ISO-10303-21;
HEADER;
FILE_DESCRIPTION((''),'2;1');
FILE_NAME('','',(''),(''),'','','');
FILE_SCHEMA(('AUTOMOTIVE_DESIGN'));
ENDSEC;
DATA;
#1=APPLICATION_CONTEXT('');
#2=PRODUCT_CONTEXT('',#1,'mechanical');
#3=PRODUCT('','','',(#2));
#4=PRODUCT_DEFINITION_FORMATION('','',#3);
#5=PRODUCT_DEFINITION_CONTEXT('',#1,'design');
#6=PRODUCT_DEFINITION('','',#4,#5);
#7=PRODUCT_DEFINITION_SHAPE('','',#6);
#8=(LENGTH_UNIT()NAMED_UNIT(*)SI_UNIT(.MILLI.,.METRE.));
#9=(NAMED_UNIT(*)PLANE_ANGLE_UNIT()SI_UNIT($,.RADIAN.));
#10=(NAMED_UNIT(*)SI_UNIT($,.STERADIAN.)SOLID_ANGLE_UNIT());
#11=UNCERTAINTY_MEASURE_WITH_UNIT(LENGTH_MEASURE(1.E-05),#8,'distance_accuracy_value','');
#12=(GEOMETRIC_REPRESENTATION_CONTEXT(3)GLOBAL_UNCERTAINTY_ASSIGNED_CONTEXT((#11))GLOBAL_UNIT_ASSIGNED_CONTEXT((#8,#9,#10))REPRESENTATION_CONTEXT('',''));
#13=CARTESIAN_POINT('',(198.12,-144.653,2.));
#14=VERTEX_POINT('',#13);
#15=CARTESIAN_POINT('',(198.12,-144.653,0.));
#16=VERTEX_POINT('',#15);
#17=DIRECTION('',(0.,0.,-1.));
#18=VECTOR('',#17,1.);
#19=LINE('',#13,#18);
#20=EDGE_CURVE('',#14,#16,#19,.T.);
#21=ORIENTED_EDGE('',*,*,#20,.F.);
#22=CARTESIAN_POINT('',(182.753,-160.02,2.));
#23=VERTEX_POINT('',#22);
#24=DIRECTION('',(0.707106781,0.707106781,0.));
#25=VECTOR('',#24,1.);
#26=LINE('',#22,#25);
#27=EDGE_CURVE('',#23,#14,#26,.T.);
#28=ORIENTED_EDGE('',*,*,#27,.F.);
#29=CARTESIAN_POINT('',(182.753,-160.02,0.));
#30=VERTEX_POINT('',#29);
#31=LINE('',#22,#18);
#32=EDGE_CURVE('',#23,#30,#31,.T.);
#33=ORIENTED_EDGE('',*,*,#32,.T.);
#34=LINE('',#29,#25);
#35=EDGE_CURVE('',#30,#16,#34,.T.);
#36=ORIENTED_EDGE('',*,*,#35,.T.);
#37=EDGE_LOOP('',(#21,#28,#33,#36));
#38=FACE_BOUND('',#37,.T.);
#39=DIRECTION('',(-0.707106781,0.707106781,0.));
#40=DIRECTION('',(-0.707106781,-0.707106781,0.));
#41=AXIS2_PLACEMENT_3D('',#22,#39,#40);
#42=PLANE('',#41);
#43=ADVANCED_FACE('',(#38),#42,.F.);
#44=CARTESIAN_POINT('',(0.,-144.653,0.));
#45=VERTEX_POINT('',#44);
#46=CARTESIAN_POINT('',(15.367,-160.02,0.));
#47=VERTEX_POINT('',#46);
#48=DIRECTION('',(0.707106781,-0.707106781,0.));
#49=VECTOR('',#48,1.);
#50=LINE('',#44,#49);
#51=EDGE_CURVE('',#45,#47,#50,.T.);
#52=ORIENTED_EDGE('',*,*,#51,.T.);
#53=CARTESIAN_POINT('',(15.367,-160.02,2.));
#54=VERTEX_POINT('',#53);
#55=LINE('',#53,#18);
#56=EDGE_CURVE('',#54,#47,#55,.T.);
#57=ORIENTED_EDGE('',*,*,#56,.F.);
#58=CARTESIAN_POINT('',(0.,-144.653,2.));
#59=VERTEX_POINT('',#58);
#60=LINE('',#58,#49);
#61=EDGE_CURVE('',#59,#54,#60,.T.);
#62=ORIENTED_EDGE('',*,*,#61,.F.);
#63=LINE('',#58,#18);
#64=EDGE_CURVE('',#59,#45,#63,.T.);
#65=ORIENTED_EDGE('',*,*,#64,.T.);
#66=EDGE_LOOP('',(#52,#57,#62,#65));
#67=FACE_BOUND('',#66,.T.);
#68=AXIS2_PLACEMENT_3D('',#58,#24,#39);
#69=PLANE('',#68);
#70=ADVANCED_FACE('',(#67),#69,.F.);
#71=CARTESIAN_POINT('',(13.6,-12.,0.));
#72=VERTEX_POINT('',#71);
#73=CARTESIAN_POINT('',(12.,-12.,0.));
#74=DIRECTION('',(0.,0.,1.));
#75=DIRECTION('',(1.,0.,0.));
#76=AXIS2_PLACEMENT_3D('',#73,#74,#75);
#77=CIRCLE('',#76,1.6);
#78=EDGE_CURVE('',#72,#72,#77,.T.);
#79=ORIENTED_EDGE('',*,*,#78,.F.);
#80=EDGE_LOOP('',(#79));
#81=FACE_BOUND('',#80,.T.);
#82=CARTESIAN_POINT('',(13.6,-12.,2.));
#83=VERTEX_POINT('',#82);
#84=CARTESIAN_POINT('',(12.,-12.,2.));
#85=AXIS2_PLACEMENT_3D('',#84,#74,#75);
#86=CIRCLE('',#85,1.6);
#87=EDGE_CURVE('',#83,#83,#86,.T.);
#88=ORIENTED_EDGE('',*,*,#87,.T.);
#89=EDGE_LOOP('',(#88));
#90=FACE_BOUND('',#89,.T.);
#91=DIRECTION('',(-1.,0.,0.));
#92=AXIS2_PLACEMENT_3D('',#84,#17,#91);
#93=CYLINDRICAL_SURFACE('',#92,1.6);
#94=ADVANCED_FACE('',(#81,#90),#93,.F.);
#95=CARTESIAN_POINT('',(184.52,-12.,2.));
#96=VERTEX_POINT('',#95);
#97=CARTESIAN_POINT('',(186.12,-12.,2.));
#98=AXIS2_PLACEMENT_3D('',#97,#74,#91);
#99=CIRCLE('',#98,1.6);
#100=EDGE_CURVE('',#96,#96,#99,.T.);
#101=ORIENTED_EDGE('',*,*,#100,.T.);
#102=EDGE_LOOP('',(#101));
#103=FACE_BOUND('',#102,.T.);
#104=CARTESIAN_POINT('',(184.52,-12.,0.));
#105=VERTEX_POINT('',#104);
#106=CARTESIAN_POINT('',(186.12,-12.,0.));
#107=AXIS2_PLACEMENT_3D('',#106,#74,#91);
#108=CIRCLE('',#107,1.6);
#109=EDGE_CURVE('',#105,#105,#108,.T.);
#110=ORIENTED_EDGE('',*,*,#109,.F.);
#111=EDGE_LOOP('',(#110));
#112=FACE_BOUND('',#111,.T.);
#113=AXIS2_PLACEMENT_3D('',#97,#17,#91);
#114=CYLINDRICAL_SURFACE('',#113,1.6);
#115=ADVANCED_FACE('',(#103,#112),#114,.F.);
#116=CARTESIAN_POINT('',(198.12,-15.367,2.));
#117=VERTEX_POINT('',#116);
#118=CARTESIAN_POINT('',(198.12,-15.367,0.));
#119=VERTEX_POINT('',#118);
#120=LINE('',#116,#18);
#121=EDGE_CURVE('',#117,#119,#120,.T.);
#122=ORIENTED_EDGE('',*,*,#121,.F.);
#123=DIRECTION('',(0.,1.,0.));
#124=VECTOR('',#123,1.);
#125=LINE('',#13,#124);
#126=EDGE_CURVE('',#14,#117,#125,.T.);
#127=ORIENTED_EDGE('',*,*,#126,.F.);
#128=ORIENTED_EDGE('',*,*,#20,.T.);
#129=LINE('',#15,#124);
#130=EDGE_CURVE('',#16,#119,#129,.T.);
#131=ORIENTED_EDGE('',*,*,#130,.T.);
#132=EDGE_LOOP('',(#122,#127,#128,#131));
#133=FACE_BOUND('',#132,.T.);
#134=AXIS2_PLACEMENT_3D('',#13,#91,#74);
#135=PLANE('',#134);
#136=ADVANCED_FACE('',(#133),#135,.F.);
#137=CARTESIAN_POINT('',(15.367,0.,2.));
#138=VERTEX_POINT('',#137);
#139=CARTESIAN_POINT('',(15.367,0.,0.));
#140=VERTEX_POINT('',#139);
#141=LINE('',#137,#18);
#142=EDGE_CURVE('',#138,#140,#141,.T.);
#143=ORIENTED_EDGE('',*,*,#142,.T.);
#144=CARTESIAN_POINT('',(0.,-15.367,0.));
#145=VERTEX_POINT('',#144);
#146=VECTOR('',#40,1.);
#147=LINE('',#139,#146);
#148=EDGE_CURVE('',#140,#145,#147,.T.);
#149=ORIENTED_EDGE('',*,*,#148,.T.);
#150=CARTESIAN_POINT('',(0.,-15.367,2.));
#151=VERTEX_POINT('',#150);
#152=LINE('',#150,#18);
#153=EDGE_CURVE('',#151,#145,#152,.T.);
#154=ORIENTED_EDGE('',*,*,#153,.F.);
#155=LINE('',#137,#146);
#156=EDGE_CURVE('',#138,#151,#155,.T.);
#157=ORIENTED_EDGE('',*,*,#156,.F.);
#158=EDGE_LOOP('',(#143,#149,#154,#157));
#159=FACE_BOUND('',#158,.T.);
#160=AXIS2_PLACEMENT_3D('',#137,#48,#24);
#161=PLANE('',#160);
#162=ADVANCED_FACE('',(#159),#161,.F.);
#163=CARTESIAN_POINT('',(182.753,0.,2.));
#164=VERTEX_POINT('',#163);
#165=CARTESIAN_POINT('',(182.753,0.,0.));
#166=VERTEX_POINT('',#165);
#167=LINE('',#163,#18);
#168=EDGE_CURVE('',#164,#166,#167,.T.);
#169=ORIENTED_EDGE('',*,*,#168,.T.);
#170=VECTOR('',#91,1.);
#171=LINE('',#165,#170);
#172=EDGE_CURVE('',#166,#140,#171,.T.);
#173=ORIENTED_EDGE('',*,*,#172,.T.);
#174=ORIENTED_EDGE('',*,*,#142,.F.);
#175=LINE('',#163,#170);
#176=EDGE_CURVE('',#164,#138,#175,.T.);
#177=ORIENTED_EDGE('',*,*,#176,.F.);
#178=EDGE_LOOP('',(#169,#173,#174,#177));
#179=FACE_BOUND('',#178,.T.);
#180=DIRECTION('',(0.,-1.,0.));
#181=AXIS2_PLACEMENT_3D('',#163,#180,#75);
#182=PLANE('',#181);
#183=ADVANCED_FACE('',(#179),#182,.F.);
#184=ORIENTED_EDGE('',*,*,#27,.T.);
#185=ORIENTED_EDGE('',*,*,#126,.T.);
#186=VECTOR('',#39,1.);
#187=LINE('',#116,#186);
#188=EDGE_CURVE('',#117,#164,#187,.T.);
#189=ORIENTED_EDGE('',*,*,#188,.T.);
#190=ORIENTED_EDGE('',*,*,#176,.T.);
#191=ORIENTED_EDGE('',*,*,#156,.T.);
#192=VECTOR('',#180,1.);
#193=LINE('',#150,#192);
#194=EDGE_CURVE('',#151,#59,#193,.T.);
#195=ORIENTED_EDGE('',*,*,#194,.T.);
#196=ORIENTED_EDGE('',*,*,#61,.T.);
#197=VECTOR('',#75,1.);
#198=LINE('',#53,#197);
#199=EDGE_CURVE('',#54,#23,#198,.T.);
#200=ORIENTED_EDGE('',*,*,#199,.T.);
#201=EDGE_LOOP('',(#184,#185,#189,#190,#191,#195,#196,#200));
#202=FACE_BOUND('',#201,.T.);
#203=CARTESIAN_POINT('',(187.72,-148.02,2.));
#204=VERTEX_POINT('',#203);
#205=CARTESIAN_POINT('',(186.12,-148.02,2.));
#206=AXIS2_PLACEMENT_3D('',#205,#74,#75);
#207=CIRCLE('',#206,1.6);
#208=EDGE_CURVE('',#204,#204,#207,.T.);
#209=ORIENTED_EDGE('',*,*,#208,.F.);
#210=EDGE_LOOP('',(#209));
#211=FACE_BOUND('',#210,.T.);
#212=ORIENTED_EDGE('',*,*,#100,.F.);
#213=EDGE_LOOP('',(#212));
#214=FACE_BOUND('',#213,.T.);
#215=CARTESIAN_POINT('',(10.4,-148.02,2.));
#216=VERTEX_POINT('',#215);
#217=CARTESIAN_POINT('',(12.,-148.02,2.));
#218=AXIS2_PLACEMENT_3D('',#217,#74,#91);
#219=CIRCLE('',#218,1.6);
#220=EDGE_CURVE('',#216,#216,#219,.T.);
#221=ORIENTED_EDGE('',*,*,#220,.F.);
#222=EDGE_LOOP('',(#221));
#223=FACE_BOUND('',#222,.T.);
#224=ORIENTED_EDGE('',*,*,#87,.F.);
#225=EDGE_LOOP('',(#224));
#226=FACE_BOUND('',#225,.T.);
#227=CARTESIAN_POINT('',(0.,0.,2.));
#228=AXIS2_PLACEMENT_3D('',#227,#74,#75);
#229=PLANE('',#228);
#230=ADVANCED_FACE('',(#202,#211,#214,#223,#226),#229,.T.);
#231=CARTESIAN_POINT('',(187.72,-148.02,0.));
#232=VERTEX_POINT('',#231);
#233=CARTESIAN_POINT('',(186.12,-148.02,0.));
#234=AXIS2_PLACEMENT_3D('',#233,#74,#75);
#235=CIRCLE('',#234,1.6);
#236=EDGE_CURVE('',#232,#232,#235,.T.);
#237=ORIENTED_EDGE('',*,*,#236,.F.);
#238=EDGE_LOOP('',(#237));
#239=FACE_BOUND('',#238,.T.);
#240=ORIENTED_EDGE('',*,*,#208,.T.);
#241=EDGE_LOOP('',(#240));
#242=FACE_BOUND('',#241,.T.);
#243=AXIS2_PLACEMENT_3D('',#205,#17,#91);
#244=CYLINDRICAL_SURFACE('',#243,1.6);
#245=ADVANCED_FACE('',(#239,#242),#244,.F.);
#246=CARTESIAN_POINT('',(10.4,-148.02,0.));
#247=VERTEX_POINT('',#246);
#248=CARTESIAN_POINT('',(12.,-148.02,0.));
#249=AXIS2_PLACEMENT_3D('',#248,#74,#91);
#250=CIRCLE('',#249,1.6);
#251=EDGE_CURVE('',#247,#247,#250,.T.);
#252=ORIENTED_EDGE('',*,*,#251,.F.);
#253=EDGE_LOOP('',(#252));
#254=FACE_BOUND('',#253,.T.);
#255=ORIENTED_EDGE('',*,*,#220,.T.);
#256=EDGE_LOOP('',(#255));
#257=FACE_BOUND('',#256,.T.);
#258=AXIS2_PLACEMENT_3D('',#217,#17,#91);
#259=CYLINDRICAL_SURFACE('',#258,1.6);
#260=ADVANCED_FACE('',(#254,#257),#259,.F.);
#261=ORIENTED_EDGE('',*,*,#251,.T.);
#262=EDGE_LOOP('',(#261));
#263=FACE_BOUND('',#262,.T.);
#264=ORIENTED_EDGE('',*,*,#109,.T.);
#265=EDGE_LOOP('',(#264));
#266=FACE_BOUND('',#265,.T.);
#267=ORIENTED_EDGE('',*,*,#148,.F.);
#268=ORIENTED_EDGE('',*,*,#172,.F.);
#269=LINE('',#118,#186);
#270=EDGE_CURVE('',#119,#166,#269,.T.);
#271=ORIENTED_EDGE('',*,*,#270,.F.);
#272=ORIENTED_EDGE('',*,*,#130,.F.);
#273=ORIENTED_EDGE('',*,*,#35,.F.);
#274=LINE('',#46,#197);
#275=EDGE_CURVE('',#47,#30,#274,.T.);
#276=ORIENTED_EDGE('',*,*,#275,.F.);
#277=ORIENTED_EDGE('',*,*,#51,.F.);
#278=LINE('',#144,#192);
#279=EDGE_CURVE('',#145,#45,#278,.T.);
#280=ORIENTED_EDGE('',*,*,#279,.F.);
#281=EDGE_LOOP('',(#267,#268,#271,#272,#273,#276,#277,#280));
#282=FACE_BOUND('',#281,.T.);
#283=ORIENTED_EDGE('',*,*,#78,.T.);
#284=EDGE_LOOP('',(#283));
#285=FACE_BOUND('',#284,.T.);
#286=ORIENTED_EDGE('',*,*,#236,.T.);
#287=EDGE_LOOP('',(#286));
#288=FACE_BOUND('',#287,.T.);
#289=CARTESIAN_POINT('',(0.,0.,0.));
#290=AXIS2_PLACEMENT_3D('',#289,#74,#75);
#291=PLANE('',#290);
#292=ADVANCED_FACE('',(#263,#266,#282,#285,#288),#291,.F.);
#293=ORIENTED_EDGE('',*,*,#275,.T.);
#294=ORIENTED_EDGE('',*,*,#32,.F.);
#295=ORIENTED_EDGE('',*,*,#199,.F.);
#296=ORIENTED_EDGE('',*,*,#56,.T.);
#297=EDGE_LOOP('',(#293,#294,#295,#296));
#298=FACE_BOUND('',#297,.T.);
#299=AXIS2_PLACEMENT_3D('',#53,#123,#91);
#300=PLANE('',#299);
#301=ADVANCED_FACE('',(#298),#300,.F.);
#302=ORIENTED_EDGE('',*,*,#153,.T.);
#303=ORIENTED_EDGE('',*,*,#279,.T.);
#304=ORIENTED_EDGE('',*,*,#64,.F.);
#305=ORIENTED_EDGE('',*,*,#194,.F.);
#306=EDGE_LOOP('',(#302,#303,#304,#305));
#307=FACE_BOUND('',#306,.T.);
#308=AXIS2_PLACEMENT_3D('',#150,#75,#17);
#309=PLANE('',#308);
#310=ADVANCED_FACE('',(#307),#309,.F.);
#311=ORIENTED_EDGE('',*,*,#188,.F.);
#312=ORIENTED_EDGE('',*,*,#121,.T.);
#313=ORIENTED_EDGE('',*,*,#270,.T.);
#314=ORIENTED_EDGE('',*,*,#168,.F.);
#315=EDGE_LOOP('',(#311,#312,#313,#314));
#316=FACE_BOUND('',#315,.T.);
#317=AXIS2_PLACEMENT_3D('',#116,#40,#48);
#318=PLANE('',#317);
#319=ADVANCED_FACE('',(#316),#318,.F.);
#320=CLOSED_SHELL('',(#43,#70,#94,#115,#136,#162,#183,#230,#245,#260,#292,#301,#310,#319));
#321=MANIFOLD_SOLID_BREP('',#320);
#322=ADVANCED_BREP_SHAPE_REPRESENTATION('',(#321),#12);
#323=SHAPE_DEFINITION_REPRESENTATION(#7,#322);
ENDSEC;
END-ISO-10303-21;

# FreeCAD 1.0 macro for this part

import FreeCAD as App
import Part
import Sketcher
Q = App.Units.Quantity

doc = App.newDocument("Part")
body = doc.addObject("PartDesign::Body", "Body")

# Sketch on XY plane
sketch1 = body.newObject("Sketcher::SketchObject", "Sketch")
sketch1.AttachmentSupport = (doc.getObject("XY_Plane"), [""])
sketch1.MapMode = "FlatFace"
sketch1.addGeometry(Part.LineSegment(App.Vector(15.367, 0, 0), App.Vector(0, -15.367, 0)), False)
sketch1.addGeometry(Part.LineSegment(App.Vector(0, -15.367, 0), App.Vector(0, -144.653, 0)), False)
sketch1.addGeometry(Part.LineSegment(App.Vector(0, -144.653, 0), App.Vector(15.367, -160.02, 0)), False)
sketch1.addGeometry(Part.LineSegment(App.Vector(15.367, -160.02, 0), App.Vector(182.753, -160.02, 0)), False)
sketch1.addGeometry(Part.LineSegment(App.Vector(182.753, -160.02, 0), App.Vector(198.12, -144.653, 0)), False)
sketch1.addGeometry(Part.LineSegment(App.Vector(198.12, -144.653, 0), App.Vector(198.12, -15.367, 0)), False)
sketch1.addGeometry(Part.LineSegment(App.Vector(198.12, -15.367, 0), App.Vector(182.753, 0, 0)), False)
sketch1.addGeometry(Part.LineSegment(App.Vector(182.753, 0, 0), App.Vector(15.367, 0, 0)), False)
sketch1.addGeometry(Part.Circle(App.Vector(12, -148.02, 0), App.Vector(0, 0, 1), 1.6), False)
sketch1.addGeometry(Part.Circle(App.Vector(186.12, -148.02, 0), App.Vector(0, 0, 1), 1.6), False)
sketch1.addGeometry(Part.Circle(App.Vector(12, -12, 0), App.Vector(0, 0, 1), 1.6), False)
sketch1.addGeometry(Part.Circle(App.Vector(186.12, -12, 0), App.Vector(0, 0, 1), 1.6), False)
sketch1.addConstraint(Sketcher.Constraint("Coincident", 0, 2, 1, 1))
sketch1.addConstraint(Sketcher.Constraint("Coincident", 1, 2, 2, 1))
sketch1.addConstraint(Sketcher.Constraint("Coincident", 2, 2, 3, 1))
sketch1.addConstraint(Sketcher.Constraint("Coincident", 3, 2, 4, 1))
sketch1.addConstraint(Sketcher.Constraint("Coincident", 4, 2, 5, 1))
sketch1.addConstraint(Sketcher.Constraint("Coincident", 5, 2, 6, 1))
sketch1.addConstraint(Sketcher.Constraint("Coincident", 6, 2, 7, 1))
sketch1.addConstraint(Sketcher.Constraint("Coincident", 7, 2, 0, 1))
sketch1.addConstraint(Sketcher.Constraint("Vertical", 1))
sketch1.addConstraint(Sketcher.Constraint("Horizontal", 3))
sketch1.addConstraint(Sketcher.Constraint("Vertical", 5))
sketch1.addConstraint(Sketcher.Constraint("Horizontal", 7))
sketch1.addConstraint(Sketcher.Constraint("Equal", 8, 9))
sketch1.addConstraint(Sketcher.Constraint("Equal", 9, 10))
sketch1.addConstraint(Sketcher.Constraint("Equal", 10, 11))
sketch1.addConstraint(Sketcher.Constraint("PointOnObject", 0, 2, -2))
sketch1.addConstraint(Sketcher.Constraint("PointOnObject", 6, 2, -1))
sketch1.addConstraint(Sketcher.Constraint("Perpendicular", 0, 2))
sketch1.addConstraint(Sketcher.Constraint("Perpendicular", 2, 4))
sketch1.addConstraint(Sketcher.Constraint("Perpendicular", 4, 6))
sketch1.addConstraint(Sketcher.Constraint("Horizontal", 8, 3, 9, 3))
sketch1.addConstraint(Sketcher.Constraint("Horizontal", 10, 3, 11, 3))
sketch1.addConstraint(Sketcher.Constraint("Horizontal", 1, 2, 4, 2))
sketch1.addConstraint(Sketcher.Constraint("Horizontal", 0, 2, 5, 2))
sketch1.addConstraint(Sketcher.Constraint("Vertical", 8, 3, 10, 3))
sketch1.addConstraint(Sketcher.Constraint("Vertical", 9, 3, 11, 3))
sketch1.addConstraint(Sketcher.Constraint("Vertical", 3, 2, 6, 2))
sketch1.addConstraint(Sketcher.Constraint("Vertical", 2, 2, 7, 2))
sketch1.addConstraint(Sketcher.Constraint("Diameter", 8, Q("3.2 mm")))
sketch1.addConstraint(Sketcher.Constraint("DistanceX", -1, 1, 8, 3, Q("12 mm")))
sketch1.addConstraint(Sketcher.Constraint("DistanceY", 10, 3, -1, 1, Q("12 mm")))
sketch1.addConstraint(Sketcher.Constraint("DistanceY", 2, 2, 8, 3, Q("12 mm")))
sketch1.addConstraint(Sketcher.Constraint("DistanceX", 9, 3, 4, 2, Q("12 mm")))
sketch1.addConstraint(Sketcher.Constraint("DistanceX", 3, 1, 3, 2, Q("167.386 mm")))
sketch1.addConstraint(Sketcher.Constraint("DistanceY", 1, 2, 1, 1, Q("129.286 mm")))
sketch1.addConstraint(Sketcher.Constraint("DistanceY", 8, 3, -1, 1, Q("148.02 mm")))
pad1 = body.newObject("PartDesign::Pad", "Pad")
pad1.Profile = sketch1
pad1.Length = 2

doc.recompute()
